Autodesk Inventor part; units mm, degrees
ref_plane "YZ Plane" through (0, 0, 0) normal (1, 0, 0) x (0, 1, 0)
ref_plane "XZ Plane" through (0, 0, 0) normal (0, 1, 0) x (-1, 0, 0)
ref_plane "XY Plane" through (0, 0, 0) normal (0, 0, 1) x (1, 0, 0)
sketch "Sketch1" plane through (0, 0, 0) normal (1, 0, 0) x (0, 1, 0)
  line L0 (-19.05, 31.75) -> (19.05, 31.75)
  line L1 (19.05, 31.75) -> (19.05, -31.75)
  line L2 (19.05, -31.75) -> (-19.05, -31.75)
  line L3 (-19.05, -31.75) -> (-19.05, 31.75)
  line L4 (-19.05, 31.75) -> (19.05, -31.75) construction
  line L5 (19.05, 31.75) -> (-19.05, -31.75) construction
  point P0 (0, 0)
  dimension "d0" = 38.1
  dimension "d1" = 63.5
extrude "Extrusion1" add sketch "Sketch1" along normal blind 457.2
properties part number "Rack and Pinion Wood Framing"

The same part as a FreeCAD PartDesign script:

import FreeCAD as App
import Part
import Sketcher
Q = App.Units.Quantity


def add_polygon(sketch, points):
    """Adds a closed chain of lines whose ends are joined by coincident constraints."""
    first, n = sketch.GeometryCount, len(points)
    for a, b in zip(points, points[1:] + points[:1]):
        sketch.addGeometry(Part.LineSegment(App.Vector(*a, 0), App.Vector(*b, 0)), False)
    for i in range(n):
        sketch.addConstraint(Sketcher.Constraint("Coincident", first + i, 2, first + (i + 1) % n, 1))

doc = App.newDocument("Part")
body = doc.addObject("PartDesign::Body", "Body")

# Sketch on YZ plane
sketch1 = doc.addObject("Sketcher::SketchObject", "Sketch")
body.addObject(sketch1)
sketch1.AttachmentSupport = (doc.YZ_Plane, [""])
sketch1.MapMode = "FlatFace"
add_polygon(sketch1, [(19, 32), (-19, 32), (-19, -32), (19, -32)])  # lines 0-3
sketch1.addConstraint(Sketcher.Constraint("Horizontal", 0))
sketch1.addConstraint(Sketcher.Constraint("Vertical", 1))
sketch1.addConstraint(Sketcher.Constraint("Horizontal", 2))
sketch1.addConstraint(Sketcher.Constraint("Vertical", 3))
sketch1.addConstraint(Sketcher.Constraint("Symmetric", 0, 2, 2, 2, -1, 1))
sketch1.addConstraint(Sketcher.Constraint("DistanceX", 0, 2, 0, 1, Q("1.5 in")))
sketch1.addConstraint(Sketcher.Constraint("DistanceY", 1, 2, 1, 1, Q("2.5 in")))
pad1 = doc.addObject("PartDesign::Pad", "Pad")
body.addObject(pad1)
pad1.Profile = sketch1
pad1.Length = Q("18 in")

doc.recompute()
